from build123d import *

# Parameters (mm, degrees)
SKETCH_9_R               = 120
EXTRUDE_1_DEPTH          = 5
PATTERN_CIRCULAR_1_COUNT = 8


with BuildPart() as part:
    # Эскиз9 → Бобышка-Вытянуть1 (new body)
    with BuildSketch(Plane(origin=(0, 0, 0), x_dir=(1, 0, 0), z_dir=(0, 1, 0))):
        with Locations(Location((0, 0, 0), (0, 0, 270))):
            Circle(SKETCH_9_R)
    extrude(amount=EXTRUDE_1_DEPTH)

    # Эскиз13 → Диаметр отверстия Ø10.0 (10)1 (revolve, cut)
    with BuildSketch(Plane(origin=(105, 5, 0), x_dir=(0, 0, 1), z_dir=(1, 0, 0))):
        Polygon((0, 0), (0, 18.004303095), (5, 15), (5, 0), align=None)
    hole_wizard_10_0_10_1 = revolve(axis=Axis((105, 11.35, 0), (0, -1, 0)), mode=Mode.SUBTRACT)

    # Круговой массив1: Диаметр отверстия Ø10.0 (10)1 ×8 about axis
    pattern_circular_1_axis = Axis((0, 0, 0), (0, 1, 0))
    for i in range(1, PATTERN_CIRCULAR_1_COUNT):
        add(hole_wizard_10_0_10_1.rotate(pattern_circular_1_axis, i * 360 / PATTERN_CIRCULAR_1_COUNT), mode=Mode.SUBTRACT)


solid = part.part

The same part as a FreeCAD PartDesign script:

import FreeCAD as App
import Part
import Sketcher
Q = App.Units.Quantity


def add_polygon(sketch, points):
    """Adds a closed chain of lines whose ends are joined by coincident constraints."""
    first, n = sketch.GeometryCount, len(points)
    for a, b in zip(points, points[1:] + points[:1]):
        sketch.addGeometry(Part.LineSegment(App.Vector(*a, 0), App.Vector(*b, 0)), False)
    for i in range(n):
        sketch.addConstraint(Sketcher.Constraint("Coincident", first + i, 2, first + (i + 1) % n, 1))

doc = App.newDocument("Part")
body = doc.addObject("PartDesign::Body", "Body")

# Sketch on XZ plane
sketch1 = body.newObject("Sketcher::SketchObject", "Sketch")
sketch1.AttachmentSupport = (doc.getObject("XZ_Plane"), [""])
sketch1.MapMode = "FlatFace"
sketch1.addGeometry(Part.Circle(App.Vector(0, 0, 0), App.Vector(0, 0, 1), 120), False)
sketch1.addConstraint(Sketcher.Constraint("Coincident", 0, 3, -1, 1))
sketch1.addConstraint(Sketcher.Constraint("Diameter", 0, 240.0))
pad1 = body.newObject("PartDesign::Pad", "Pad")
pad1.Profile = sketch1
pad1.Length = 5
pad1.Reversed = True

# Sketch on YZ plane
sketch2 = body.newObject("Sketcher::SketchObject", "Sketch001")
sketch2.AttachmentSupport = (doc.getObject("YZ_Plane"), [""])
sketch2.MapMode = "FlatFace"
sketch2.AttachmentOffset = App.Placement(App.Vector(0, 0, 105), App.Rotation())
add_polygon(sketch2, [(-13, 0), (5, 0), (5, 5), (-10, 5)])  # lines 0-3
sketch2.addConstraint(Sketcher.Constraint("Horizontal", 0))
sketch2.addConstraint(Sketcher.Constraint("Vertical", 1))
sketch2.addConstraint(Sketcher.Constraint("Horizontal", 2))
sketch2.addConstraint(Sketcher.Constraint("PointOnObject", 0, 2, -1))
sketch2.addConstraint(Sketcher.Constraint("DistanceX", 2, 2, 2, 1, 15.0))
sketch2.addConstraint(Sketcher.Constraint("DistanceY", 1, 1, 1, 2, 5.0))
sketch2.addConstraint(Sketcher.Constraint("Angle", 3, Q("-121 deg")))
sketch2.addConstraint(Sketcher.Constraint("DistanceX", -1, 1, 0, 2, 5.0))
groove = body.newObject("PartDesign::Groove", "Groove")
groove.Profile = sketch2
groove.ReferenceAxis = (sketch2, ["H_Axis"])
groove.Angle = 360
doc.recompute()

polarpattern = body.newObject("PartDesign::PolarPattern", "PolarPattern")
polarpattern.Originals = [groove]
polarpattern.Axis = (doc.getObject("Y_Axis"), [""])
polarpattern.Angle = 360
polarpattern.Occurrences = 8
body.Tip = polarpattern

doc.recompute()
